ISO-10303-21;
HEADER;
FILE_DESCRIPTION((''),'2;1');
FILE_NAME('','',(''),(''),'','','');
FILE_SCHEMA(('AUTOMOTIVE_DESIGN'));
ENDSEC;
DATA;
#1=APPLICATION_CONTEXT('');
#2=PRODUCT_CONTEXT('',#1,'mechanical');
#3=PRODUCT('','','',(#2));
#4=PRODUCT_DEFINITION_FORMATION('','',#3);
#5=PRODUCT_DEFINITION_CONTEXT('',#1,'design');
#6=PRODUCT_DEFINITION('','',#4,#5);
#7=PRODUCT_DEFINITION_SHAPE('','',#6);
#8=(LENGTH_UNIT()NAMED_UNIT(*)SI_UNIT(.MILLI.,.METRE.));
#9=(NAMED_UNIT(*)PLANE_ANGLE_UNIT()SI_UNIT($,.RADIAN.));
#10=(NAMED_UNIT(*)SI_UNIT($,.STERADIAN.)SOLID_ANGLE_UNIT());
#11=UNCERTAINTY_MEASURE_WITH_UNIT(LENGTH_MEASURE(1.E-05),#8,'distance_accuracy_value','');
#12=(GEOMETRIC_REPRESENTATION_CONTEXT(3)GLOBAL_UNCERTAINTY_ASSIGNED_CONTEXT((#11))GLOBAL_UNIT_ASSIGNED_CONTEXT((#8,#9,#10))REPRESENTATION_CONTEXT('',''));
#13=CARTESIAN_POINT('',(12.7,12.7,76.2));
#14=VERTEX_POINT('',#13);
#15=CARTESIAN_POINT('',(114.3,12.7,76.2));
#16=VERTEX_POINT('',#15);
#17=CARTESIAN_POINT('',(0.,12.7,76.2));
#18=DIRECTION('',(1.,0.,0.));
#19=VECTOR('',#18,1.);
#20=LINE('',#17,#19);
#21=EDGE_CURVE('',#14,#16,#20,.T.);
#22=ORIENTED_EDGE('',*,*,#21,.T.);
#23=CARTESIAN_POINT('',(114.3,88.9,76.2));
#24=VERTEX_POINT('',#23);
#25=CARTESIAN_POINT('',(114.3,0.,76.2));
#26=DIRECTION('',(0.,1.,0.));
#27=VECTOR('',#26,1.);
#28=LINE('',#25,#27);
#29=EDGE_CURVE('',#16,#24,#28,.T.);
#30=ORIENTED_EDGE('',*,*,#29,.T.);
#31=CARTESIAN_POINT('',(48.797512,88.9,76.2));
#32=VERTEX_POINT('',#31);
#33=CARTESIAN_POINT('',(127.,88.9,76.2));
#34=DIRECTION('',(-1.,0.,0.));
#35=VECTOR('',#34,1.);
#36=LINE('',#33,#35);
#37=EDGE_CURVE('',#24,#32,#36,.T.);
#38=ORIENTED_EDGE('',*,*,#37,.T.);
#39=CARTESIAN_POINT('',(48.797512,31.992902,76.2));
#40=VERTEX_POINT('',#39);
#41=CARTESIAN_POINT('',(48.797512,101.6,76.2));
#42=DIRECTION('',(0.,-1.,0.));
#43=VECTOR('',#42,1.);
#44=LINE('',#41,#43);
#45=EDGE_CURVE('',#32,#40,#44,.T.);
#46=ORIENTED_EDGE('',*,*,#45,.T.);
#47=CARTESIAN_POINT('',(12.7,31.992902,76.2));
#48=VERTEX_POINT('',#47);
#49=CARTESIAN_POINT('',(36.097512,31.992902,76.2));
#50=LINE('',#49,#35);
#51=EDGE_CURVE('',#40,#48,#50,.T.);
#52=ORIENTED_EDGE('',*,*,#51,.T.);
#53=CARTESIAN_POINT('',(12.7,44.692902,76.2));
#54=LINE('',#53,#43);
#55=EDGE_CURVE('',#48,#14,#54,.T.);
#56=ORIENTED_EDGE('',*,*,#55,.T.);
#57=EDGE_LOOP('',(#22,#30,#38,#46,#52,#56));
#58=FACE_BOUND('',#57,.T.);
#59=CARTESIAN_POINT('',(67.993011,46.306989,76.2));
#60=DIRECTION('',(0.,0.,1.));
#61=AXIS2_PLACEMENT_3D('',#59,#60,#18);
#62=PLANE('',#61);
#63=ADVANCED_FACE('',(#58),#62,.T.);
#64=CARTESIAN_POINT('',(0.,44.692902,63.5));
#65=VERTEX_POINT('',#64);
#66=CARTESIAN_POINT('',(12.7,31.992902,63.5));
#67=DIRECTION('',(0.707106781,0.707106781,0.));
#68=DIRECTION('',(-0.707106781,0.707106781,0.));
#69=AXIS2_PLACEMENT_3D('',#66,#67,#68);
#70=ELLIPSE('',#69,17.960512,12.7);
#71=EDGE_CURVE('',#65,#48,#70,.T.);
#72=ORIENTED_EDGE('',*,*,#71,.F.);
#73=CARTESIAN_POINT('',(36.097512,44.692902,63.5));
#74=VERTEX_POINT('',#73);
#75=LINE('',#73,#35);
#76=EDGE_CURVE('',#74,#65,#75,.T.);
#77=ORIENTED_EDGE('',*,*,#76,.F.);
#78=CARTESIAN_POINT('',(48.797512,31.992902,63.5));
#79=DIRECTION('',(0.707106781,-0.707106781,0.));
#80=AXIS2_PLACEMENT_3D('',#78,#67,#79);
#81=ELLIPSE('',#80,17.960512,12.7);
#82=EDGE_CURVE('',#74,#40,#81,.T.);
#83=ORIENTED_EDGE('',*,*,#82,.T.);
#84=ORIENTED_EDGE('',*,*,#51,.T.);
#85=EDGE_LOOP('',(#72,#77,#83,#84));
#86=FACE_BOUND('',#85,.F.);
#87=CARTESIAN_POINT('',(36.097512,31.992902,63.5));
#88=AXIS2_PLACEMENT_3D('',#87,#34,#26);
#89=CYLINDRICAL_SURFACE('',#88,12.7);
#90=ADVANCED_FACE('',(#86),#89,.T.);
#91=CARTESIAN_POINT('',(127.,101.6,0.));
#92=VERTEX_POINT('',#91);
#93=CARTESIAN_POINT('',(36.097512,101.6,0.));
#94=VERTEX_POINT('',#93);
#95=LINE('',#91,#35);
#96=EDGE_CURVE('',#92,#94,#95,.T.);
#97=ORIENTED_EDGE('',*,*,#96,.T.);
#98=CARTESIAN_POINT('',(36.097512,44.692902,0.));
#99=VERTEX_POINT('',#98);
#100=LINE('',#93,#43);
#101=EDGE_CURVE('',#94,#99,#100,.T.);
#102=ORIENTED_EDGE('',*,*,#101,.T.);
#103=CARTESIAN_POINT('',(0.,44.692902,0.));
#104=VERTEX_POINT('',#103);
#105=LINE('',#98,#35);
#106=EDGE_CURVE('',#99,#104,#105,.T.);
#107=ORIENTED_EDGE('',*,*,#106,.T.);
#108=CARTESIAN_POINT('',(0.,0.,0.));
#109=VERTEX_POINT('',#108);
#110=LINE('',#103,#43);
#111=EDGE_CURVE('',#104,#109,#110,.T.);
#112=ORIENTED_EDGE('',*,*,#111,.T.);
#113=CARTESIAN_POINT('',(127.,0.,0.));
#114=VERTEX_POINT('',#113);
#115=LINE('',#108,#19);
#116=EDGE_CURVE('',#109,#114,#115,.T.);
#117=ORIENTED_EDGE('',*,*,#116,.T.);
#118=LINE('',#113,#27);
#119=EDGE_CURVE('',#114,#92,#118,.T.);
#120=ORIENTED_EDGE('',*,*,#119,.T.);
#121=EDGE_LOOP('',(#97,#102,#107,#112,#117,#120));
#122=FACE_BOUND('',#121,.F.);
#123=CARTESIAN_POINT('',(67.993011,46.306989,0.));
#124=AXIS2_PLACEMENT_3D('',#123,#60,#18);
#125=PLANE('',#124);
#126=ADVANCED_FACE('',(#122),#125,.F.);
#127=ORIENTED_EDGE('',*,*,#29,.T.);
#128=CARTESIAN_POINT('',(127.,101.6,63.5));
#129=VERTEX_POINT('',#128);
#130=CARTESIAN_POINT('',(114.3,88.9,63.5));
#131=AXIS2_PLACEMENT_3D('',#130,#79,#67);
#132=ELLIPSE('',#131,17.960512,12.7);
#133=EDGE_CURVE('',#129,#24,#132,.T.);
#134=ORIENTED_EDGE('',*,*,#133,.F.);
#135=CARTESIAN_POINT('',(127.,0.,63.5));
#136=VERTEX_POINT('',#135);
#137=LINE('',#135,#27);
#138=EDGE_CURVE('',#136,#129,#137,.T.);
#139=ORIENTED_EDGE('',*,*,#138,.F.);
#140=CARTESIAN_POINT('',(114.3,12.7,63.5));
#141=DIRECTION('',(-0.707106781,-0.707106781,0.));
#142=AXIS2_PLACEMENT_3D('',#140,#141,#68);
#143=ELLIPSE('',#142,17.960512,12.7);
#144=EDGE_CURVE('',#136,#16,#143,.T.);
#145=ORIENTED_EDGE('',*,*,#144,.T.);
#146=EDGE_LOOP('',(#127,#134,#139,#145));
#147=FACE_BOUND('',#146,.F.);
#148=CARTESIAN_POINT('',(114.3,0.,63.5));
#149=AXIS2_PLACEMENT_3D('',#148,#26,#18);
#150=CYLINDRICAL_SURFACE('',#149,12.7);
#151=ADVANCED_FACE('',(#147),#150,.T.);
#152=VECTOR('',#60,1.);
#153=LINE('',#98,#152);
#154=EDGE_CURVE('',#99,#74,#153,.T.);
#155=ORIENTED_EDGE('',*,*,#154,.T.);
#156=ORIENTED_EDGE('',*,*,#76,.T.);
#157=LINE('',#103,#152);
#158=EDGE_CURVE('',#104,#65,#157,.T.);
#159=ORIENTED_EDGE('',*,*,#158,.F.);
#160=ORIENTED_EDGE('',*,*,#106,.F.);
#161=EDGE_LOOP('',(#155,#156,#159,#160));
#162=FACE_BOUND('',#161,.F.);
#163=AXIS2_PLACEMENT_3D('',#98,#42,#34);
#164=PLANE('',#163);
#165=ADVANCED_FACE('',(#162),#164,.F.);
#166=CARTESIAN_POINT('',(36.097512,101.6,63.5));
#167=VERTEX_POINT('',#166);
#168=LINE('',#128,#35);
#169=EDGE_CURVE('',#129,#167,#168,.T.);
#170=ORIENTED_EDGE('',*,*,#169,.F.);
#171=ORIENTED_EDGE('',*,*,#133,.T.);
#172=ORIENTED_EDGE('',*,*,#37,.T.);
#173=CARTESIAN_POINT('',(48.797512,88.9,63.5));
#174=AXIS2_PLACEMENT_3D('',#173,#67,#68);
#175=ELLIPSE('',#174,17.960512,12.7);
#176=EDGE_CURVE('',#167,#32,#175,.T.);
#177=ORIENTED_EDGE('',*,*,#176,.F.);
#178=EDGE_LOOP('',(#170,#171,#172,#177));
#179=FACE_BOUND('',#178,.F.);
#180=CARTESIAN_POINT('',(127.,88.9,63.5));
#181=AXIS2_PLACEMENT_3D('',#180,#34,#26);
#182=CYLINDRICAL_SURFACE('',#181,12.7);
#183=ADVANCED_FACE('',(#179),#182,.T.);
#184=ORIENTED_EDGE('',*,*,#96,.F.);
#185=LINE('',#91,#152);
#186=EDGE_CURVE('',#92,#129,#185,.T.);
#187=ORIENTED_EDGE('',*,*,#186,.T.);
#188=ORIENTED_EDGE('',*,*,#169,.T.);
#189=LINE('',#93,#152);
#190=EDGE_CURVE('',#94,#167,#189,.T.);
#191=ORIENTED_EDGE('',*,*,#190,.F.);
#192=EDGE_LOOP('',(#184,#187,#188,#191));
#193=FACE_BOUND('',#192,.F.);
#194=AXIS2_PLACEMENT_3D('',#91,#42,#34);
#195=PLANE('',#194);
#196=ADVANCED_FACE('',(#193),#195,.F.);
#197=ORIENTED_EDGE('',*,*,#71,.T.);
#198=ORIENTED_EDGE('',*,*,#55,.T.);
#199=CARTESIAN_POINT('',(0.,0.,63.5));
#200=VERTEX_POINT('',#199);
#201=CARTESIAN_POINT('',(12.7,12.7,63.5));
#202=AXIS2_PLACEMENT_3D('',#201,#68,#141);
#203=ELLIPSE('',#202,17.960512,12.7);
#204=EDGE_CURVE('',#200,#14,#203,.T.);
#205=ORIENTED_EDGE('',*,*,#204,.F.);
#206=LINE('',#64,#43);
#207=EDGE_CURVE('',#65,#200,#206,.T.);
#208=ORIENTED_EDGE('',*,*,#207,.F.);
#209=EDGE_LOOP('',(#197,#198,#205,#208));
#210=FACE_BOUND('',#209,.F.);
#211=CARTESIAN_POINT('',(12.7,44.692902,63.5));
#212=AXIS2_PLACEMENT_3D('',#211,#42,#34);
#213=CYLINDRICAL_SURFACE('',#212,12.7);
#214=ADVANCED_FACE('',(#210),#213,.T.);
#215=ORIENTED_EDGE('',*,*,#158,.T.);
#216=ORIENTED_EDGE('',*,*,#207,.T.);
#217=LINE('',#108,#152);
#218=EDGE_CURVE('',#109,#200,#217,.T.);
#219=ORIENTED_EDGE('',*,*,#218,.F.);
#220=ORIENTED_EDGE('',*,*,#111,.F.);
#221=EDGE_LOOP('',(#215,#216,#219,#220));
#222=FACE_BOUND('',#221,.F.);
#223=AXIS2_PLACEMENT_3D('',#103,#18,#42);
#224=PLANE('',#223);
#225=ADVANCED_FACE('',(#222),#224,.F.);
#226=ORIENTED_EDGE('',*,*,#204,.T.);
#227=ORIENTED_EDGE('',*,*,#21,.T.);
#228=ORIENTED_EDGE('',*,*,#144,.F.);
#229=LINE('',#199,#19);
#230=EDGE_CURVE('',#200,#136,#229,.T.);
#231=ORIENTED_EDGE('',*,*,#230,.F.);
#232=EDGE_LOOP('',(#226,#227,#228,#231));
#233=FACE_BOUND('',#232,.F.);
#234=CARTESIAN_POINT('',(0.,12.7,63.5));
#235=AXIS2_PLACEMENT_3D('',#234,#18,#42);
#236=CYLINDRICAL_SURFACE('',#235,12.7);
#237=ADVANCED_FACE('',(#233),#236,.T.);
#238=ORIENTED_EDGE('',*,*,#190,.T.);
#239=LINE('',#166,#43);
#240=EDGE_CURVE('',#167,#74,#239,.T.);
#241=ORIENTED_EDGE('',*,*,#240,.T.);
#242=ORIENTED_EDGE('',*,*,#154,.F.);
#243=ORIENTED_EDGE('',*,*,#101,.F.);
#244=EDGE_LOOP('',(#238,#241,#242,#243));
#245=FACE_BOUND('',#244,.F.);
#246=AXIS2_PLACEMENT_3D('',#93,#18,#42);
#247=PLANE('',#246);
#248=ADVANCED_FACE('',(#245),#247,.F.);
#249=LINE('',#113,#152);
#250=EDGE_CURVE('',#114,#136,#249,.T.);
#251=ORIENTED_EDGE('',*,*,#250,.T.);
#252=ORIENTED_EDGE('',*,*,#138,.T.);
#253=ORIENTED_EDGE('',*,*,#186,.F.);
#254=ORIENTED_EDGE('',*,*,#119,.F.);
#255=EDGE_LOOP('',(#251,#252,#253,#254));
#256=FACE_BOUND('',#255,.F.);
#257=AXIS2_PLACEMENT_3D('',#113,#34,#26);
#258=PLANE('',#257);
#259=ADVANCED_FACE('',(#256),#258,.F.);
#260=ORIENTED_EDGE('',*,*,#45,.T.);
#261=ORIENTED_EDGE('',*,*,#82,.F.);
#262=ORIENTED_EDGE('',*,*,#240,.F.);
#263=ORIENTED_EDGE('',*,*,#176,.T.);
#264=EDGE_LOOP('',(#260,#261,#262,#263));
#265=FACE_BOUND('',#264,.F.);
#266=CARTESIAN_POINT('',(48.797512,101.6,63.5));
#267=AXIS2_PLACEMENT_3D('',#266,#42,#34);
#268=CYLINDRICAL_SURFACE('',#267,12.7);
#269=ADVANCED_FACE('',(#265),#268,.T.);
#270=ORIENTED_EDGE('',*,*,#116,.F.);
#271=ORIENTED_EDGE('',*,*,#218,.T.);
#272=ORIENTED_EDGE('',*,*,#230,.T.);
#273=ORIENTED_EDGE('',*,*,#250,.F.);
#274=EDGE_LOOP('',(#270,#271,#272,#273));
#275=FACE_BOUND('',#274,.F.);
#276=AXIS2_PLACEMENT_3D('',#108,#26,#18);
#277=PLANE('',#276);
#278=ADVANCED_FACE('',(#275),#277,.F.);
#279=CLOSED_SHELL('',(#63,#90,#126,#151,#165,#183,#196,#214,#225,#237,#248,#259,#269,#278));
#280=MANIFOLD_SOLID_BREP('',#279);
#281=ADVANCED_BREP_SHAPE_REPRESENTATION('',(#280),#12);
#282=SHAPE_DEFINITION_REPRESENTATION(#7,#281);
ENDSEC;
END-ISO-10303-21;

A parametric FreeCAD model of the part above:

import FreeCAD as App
import Part
import Sketcher

V = App.Vector
Q = App.Units.Quantity


def edges_at(feature, points):
    """Names of the edges that pass closest to the given points."""
    edges = feature.Shape.Edges
    near = lambda p: min(range(len(edges)), key=lambda i: edges[i].distToShape(Part.Vertex(*p))[0])
    return sorted({f"Edge{near(p) + 1}" for p in points})


def add_polygon(sketch, points):
    """Adds a closed chain of lines whose ends are joined by coincident constraints."""
    first, n = sketch.GeometryCount, len(points)
    for a, b in zip(points, points[1:] + points[:1]):
        sketch.addGeometry(Part.LineSegment(App.Vector(*a, 0), App.Vector(*b, 0)), False)
    for i in range(n):
        sketch.addConstraint(Sketcher.Constraint("Coincident", first + i, 2, first + (i + 1) % n, 1))

doc = App.newDocument("Part")
body = doc.addObject("PartDesign::Body", "Body")

# Sketch on XY plane
sketch1 = body.newObject("Sketcher::SketchObject", "Sketch")
sketch1.AttachmentSupport = (doc.getObject("XY_Plane"), [""])
sketch1.MapMode = "FlatFace"
add_polygon(sketch1, [(0, 44.692902), (0, 0), (127, 0), (127, 101.6), (36.097512, 101.6), (36.097512, 44.692902)])  # lines 0-5
sketch1.addConstraint(Sketcher.Constraint("Vertical", 0))
sketch1.addConstraint(Sketcher.Constraint("Horizontal", 1))
sketch1.addConstraint(Sketcher.Constraint("Vertical", 2))
sketch1.addConstraint(Sketcher.Constraint("Horizontal", 3))
sketch1.addConstraint(Sketcher.Constraint("Vertical", 4))
sketch1.addConstraint(Sketcher.Constraint("Horizontal", 5))
sketch1.addConstraint(Sketcher.Constraint("Coincident", 0, 2, -1, 1))
sketch1.addConstraint(Sketcher.Constraint("DistanceX", 1, 1, 1, 2, Q("5 in")))
sketch1.addConstraint(Sketcher.Constraint("DistanceY", 2, 1, 2, 2, Q("4 in")))
sketch1.addConstraint(Sketcher.Constraint("DistanceY", 0, 2, 0, 1, 44.692902))
sketch1.addConstraint(Sketcher.Constraint("DistanceX", 3, 2, 3, 1, 90.902488))
pad1 = body.newObject("PartDesign::Pad", "Pad")
pad1.Profile = sketch1
pad1.Length = Q("3 in")
doc.recompute()

fillet = body.newObject("PartDesign::Fillet", "Fillet")
fillet.Base = (pad1, edges_at(pad1, [
    (127, 50.8, 76.2),
    (81.549, 101.6, 76.2),
    (36.098, 73.146, 76.2),
    (18.049, 44.693, 76.2),
    (0, 22.346, 76.2),
    (63.5, 0, 76.2),
]))
fillet.Radius = Q("0.5 in")

doc.recompute()
